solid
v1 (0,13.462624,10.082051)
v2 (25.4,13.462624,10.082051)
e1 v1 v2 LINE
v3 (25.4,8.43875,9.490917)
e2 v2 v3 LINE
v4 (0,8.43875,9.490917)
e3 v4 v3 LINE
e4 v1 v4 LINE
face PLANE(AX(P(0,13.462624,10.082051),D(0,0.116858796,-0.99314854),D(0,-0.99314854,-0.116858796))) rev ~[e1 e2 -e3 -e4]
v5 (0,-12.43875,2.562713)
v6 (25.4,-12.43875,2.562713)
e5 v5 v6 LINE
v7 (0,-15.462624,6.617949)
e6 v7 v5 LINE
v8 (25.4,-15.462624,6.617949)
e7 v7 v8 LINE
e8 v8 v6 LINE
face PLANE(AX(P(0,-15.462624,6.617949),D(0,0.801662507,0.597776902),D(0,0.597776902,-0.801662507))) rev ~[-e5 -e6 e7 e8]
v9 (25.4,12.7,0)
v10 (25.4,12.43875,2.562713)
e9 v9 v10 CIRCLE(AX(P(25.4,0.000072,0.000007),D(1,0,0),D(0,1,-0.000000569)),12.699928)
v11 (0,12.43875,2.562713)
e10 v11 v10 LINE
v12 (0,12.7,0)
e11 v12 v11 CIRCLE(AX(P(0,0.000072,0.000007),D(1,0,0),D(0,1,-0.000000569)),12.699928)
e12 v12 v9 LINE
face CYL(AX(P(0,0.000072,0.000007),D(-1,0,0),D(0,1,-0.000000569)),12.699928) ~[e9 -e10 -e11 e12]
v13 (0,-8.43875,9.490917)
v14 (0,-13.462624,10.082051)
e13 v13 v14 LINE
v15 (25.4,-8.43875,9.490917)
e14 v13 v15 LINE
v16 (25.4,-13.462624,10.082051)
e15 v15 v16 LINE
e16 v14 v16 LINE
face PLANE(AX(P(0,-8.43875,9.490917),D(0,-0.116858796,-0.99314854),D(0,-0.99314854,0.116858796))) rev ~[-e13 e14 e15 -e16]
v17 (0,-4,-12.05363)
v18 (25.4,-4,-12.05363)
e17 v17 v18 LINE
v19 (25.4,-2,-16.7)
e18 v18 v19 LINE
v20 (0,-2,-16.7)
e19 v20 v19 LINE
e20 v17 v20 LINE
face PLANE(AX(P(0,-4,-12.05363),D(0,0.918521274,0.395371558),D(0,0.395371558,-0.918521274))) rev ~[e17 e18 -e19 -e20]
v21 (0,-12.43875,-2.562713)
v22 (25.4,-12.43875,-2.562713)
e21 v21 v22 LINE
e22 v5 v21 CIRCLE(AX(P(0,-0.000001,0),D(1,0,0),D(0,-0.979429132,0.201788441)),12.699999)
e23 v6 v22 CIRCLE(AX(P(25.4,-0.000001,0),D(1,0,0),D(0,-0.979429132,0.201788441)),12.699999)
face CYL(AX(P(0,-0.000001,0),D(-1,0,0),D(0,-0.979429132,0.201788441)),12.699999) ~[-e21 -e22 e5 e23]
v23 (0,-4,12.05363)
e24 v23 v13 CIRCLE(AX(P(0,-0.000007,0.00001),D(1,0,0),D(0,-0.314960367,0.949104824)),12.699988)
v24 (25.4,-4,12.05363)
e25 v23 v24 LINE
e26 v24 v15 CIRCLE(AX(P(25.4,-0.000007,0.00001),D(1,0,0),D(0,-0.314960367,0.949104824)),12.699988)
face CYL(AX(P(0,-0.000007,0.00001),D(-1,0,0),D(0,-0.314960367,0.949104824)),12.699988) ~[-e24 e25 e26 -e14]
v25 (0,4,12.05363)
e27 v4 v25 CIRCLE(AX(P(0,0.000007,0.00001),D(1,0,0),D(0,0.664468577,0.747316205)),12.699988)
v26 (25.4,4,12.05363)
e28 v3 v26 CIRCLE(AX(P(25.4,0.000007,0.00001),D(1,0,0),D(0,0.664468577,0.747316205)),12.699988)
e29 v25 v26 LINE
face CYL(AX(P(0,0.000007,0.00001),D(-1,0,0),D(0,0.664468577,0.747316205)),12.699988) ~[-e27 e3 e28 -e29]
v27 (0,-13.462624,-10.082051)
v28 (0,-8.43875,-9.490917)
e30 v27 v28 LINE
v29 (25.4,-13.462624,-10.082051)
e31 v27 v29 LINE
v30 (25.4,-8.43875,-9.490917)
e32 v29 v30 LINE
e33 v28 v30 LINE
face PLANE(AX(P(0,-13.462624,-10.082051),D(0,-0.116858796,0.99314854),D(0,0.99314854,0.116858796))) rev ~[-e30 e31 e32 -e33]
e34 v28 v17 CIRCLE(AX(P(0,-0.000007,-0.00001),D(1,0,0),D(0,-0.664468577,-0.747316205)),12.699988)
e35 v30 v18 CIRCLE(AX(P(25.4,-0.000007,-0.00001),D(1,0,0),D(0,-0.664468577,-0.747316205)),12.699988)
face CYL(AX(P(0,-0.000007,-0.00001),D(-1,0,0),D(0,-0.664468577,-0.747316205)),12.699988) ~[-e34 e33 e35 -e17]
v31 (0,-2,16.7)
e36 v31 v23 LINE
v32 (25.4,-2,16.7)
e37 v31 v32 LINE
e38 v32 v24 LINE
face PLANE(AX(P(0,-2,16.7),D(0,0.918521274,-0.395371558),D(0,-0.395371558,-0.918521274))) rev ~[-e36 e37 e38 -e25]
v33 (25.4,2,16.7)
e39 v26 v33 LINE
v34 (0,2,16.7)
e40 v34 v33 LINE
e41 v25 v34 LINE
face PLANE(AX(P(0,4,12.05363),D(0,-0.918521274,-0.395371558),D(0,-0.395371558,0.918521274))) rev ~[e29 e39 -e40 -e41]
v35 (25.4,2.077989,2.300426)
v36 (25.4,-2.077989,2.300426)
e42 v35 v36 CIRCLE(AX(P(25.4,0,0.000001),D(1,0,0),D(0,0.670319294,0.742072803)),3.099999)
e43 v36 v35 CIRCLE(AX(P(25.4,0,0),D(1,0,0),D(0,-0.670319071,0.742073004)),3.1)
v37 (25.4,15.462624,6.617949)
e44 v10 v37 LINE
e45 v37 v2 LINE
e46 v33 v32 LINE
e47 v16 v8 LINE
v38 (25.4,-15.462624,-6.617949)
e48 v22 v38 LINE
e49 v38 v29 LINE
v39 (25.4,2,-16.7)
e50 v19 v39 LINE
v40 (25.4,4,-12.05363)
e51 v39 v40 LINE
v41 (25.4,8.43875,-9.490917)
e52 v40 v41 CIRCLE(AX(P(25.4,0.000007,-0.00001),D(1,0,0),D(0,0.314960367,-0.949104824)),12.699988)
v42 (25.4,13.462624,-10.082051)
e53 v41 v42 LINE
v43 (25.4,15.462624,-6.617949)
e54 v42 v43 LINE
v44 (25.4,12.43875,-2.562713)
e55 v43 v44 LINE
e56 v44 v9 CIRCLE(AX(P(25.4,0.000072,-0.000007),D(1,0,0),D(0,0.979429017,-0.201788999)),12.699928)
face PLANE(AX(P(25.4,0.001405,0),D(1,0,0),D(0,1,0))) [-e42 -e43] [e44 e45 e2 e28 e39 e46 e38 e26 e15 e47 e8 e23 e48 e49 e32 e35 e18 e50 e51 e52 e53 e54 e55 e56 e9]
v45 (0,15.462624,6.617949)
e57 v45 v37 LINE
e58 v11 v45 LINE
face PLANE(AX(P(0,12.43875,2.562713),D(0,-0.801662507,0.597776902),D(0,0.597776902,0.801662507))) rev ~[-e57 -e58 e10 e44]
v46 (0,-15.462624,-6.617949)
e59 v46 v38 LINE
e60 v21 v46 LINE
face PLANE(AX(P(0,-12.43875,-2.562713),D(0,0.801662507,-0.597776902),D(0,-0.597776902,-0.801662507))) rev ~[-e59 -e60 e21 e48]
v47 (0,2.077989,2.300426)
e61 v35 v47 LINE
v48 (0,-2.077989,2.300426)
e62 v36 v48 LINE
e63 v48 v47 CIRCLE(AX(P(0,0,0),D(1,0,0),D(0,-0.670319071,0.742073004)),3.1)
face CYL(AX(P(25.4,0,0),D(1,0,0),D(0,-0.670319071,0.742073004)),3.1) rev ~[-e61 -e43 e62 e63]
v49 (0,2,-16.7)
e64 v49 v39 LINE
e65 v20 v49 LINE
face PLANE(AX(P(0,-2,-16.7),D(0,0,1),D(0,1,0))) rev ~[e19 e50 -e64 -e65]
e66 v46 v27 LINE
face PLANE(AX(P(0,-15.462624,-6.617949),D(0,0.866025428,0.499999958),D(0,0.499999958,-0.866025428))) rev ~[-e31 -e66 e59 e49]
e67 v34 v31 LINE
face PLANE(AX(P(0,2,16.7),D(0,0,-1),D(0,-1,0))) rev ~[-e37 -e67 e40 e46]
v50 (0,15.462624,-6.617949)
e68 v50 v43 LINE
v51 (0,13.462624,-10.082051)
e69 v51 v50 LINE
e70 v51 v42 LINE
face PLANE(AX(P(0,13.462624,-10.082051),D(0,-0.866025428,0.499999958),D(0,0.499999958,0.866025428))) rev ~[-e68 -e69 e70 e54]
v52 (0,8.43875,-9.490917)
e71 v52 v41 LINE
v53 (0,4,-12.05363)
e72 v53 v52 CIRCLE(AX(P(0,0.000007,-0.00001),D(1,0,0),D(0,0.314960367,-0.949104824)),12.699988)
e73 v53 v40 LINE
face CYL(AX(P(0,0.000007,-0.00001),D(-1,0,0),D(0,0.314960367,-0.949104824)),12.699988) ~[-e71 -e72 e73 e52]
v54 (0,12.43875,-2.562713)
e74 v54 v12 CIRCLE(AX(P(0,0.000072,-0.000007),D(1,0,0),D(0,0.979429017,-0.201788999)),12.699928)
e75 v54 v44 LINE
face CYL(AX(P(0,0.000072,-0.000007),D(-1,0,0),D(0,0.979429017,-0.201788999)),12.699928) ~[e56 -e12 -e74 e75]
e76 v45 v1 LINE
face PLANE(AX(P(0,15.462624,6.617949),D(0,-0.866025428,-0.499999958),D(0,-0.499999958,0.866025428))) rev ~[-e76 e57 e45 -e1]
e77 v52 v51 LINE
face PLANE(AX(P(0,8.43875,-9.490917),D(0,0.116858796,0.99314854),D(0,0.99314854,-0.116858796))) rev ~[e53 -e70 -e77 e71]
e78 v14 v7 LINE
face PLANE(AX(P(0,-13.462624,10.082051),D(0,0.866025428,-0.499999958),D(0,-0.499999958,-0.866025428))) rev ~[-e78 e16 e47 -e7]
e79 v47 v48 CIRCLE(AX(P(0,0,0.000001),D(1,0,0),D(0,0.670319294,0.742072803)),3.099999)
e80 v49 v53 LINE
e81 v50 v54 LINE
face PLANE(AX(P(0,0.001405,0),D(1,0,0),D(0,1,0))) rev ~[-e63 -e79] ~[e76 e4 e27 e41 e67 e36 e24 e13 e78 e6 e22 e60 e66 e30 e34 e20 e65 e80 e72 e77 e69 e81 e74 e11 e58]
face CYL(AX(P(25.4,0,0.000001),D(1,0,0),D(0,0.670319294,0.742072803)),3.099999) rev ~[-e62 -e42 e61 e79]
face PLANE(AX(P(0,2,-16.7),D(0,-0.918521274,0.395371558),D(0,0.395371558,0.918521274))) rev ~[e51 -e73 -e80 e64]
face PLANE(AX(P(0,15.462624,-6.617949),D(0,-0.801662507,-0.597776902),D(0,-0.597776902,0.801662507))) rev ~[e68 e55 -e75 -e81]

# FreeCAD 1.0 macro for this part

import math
import FreeCAD as App
import Part
import Sketcher
from FreeCAD import Vector

doc = App.newDocument("Part")
body = doc.addObject("PartDesign::Body", "Body")

sketch1 = doc.addObject("Sketcher::SketchObject", "Sketch")
body.addObject(sketch1)
sketch1.AttachmentSupport = (doc.YZ_Plane, [""])
sketch1.MapMode = "FlatFace"
sketch1.addGeometry([
    Part.ArcOfCircle(Part.Circle(Vector(0.000072, -0.000007, 0), Vector(0, 0, 1), 12.699928), math.radians(-11.641594), math.radians(0.000033)),
    Part.ArcOfCircle(Part.Circle(Vector(0.000072, 0.000007, 0), Vector(0, 0, 1), 12.699928), math.radians(-0.000033), math.radians(11.641594)),
    Part.LineSegment(Vector(12.43875, 2.562713, 0), Vector(15.462624, 6.617949, 0)),
    Part.LineSegment(Vector(15.462624, 6.617949, 0), Vector(13.462624, 10.082051, 0)),
    Part.LineSegment(Vector(13.462624, 10.082051, 0), Vector(8.43875, 9.490917, 0)),
    Part.ArcOfCircle(Part.Circle(Vector(0.000007, 0.00001, 0), Vector(0, 0, 1), 12.699988), math.radians(48.358431), math.radians(71.641579)),
    Part.LineSegment(Vector(4, 12.05363, 0), Vector(2, 16.7, 0)),
    Part.LineSegment(Vector(2, 16.7, 0), Vector(-2, 16.7, 0)),
    Part.LineSegment(Vector(-2, 16.7, 0), Vector(-4, 12.05363, 0)),
    Part.ArcOfCircle(Part.Circle(Vector(-0.000007, 0.00001, 0), Vector(0, 0, 1), 12.699988), math.radians(108.358421), math.radians(131.641569)),
    Part.LineSegment(Vector(-8.43875, 9.490917, 0), Vector(-13.462624, 10.082051, 0)),
    Part.LineSegment(Vector(-13.462624, 10.082051, 0), Vector(-15.462624, 6.617949, 0)),
    Part.LineSegment(Vector(-15.462624, 6.617949, 0), Vector(-12.43875, 2.562713, 0)),
    Part.ArcOfCircle(Part.Circle(Vector(-0.000001, 0, 0), Vector(0, 0, 1), 12.699999), math.radians(168.358438), math.radians(191.641562)),
    Part.LineSegment(Vector(-12.43875, -2.562713, 0), Vector(-15.462624, -6.617949, 0)),
    Part.LineSegment(Vector(-15.462624, -6.617949, 0), Vector(-13.462624, -10.082051, 0)),
    Part.LineSegment(Vector(-13.462624, -10.082051, 0), Vector(-8.43875, -9.490917, 0)),
    Part.ArcOfCircle(Part.Circle(Vector(-0.000007, -0.00001, 0), Vector(0, 0, 1), 12.699988), math.radians(-131.641569), math.radians(-108.358421)),
    Part.LineSegment(Vector(-4, -12.05363, 0), Vector(-2, -16.7, 0)),
    Part.LineSegment(Vector(-2, -16.7, 0), Vector(2, -16.7, 0)),
    Part.LineSegment(Vector(2, -16.7, 0), Vector(4, -12.05363, 0)),
    Part.ArcOfCircle(Part.Circle(Vector(0.000007, -0.00001, 0), Vector(0, 0, 1), 12.699988), math.radians(-71.641579), math.radians(-48.358431)),
    Part.LineSegment(Vector(8.43875, -9.490917, 0), Vector(13.462624, -10.082051, 0)),
    Part.LineSegment(Vector(13.462624, -10.082051, 0), Vector(15.462624, -6.617949, 0)),
    Part.LineSegment(Vector(15.462624, -6.617949, 0), Vector(12.43875, -2.562713, 0)),
], False)
sketch1.addConstraint([
    Sketcher.Constraint("Coincident", 0, 2, 1, 1),
    Sketcher.Constraint("Coincident", 1, 2, 2, 1),
    Sketcher.Constraint("Coincident", 2, 2, 3, 1),
    Sketcher.Constraint("Coincident", 3, 2, 4, 1),
    Sketcher.Constraint("Coincident", 4, 2, 5, 1),
    Sketcher.Constraint("Coincident", 5, 2, 6, 1),
    Sketcher.Constraint("Coincident", 6, 2, 7, 1),
    Sketcher.Constraint("Coincident", 7, 2, 8, 1),
    Sketcher.Constraint("Coincident", 8, 2, 9, 1),
    Sketcher.Constraint("Coincident", 9, 2, 10, 1),
    Sketcher.Constraint("Coincident", 10, 2, 11, 1),
    Sketcher.Constraint("Coincident", 11, 2, 12, 1),
    Sketcher.Constraint("Coincident", 12, 2, 13, 1),
    Sketcher.Constraint("Coincident", 13, 2, 14, 1),
    Sketcher.Constraint("Coincident", 14, 2, 15, 1),
    Sketcher.Constraint("Coincident", 15, 2, 16, 1),
    Sketcher.Constraint("Coincident", 16, 2, 17, 1),
    Sketcher.Constraint("Coincident", 17, 2, 18, 1),
    Sketcher.Constraint("Coincident", 18, 2, 19, 1),
    Sketcher.Constraint("Coincident", 19, 2, 20, 1),
    Sketcher.Constraint("Coincident", 20, 2, 21, 1),
    Sketcher.Constraint("Coincident", 21, 2, 22, 1),
    Sketcher.Constraint("Coincident", 22, 2, 23, 1),
    Sketcher.Constraint("Coincident", 23, 2, 24, 1),
    Sketcher.Constraint("Coincident", 24, 2, 0, 1),
    Sketcher.Constraint("Horizontal", 7),
    Sketcher.Constraint("Horizontal", 19),
    Sketcher.Constraint("Coincident", 13, 3, -1, 1),
    Sketcher.Constraint("PointOnObject", 0, 2, -1),
    Sketcher.Constraint("Radius", 13, 12.699999),
    Sketcher.Constraint("DistanceX", 7, 2, 7, 1, 4.0),
    Sketcher.Constraint("DistanceX", 19, 1, 19, 2, 4.0),
    Sketcher.Constraint("Distance", 3, 4.0),
    Sketcher.Constraint("Distance", 11, 4.0),
    Sketcher.Constraint("Distance", 15, 4.0),
    Sketcher.Constraint("Distance", 23, 4.0),
    Sketcher.Constraint("DistanceX", -1, 1, 5, 2, 4.0),
    Sketcher.Constraint("DistanceX", -1, 1, 6, 2, 2.0),
    Sketcher.Constraint("DistanceX", 8, 2, -1, 1, 4.0),
    Sketcher.Constraint("DistanceX", 17, 2, -1, 1, 4.0),
    Sketcher.Constraint("DistanceX", 18, 2, -1, 1, 2.0),
    Sketcher.Constraint("DistanceX", -1, 1, 20, 2, 4.0),
    Sketcher.Constraint("DistanceX", 3, 2, 2, 2, 2.0),
    Sketcher.Constraint("DistanceX", 4, 2, 1, 2, 4.0),
    Sketcher.Constraint("DistanceX", 11, 2, 10, 2, 2.0),
    Sketcher.Constraint("DistanceX", 12, 2, 9, 2, 4.0),
    Sketcher.Constraint("DistanceX", 14, 2, 15, 2, 2.0),
    Sketcher.Constraint("DistanceX", 13, 2, 16, 2, 4.0),
    Sketcher.Constraint("DistanceX", 22, 2, 23, 2, 2.0),
    Sketcher.Constraint("DistanceX", 21, 2, 24, 2, 4.0),
    Sketcher.Constraint("DistanceX", -1, 1, 0, 2, 12.7),
    Sketcher.Constraint("DistanceY", -1, 1, 6, 2, 16.7),
    Sketcher.Constraint("DistanceY", 18, 2, -1, 1, 16.7),
    Sketcher.Constraint("Radius", 0, 12.699928),
    Sketcher.Constraint("Radius", 1, 12.699928),
    Sketcher.Constraint("Radius", 5, 12.699988),
    Sketcher.Constraint("Radius", 9, 12.699988),
    Sketcher.Constraint("Radius", 17, 12.699988),
    Sketcher.Constraint("Radius", 21, 12.699988),
    Sketcher.Constraint("DistanceX", -1, 1, 1, 2, 12.43875),
    Sketcher.Constraint("DistanceY", -1, 1, 2, 2, 6.617949),
    Sketcher.Constraint("DistanceY", -1, 1, 5, 2, 12.05363),
    Sketcher.Constraint("DistanceY", -1, 1, 8, 2, 12.05363),
    Sketcher.Constraint("DistanceX", 9, 2, -1, 1, 8.43875),
    Sketcher.Constraint("DistanceY", -1, 1, 10, 2, 10.082051),
    Sketcher.Constraint("DistanceX", 13, 2, -1, 1, 12.43875),
    Sketcher.Constraint("DistanceY", 14, 2, -1, 1, 6.617949),
    Sketcher.Constraint("DistanceY", 17, 2, -1, 1, 12.05363),
    Sketcher.Constraint("DistanceY", 20, 2, -1, 1, 12.05363),
    Sketcher.Constraint("DistanceX", -1, 1, 21, 2, 8.43875),
    Sketcher.Constraint("DistanceY", 22, 2, -1, 1, 10.082051),
    Sketcher.Constraint("DistanceY", 0, 3, 1, 2, 2.56272),
    Sketcher.Constraint("DistanceY", 1, 3, 2, 2, 6.617942),
    Sketcher.Constraint("DistanceY", 5, 3, 2, 2, 6.617939),
    Sketcher.Constraint("DistanceY", 9, 3, 7, 2, 16.69999),
    Sketcher.Constraint("DistanceY", 17, 3, 11, 2, 6.617959),
    Sketcher.Constraint("DistanceY", 17, 2, 21, 3, 12.05362),
    Sketcher.Constraint("Distance", 2, 5.058533),
    Sketcher.Constraint("Distance", 10, 5.058532),
    Sketcher.Constraint("Distance", 14, 5.058533),
    Sketcher.Constraint("Distance", 22, 5.058532),
])
pad1 = doc.addObject("PartDesign::Pad", "Pad")
body.addObject(pad1)
pad1.Profile = sketch1
pad1.Length = 25.4

sketch2 = doc.addObject("Sketcher::SketchObject", "Sketch001")
body.addObject(sketch2)
sketch2.AttachmentSupport = (doc.YZ_Plane, [""])
sketch2.MapMode = "FlatFace"
sketch2.AttachmentOffset = App.Placement(Vector(0, 0, 25.4), App.Rotation())
sketch2.addGeometry([
    Part.ArcOfCircle(Part.Circle(Vector(0, 0, 0), Vector(0, 0, 1), 3.1), math.radians(48), math.radians(132)),
    Part.ArcOfCircle(Part.Circle(Vector(0, 0, 0), Vector(0, 0, 1), 3.1), math.radians(132), math.radians(408)),
], False)
sketch2.addConstraint([
    Sketcher.Constraint("Tangent", 0, 1, 1, 2),
    Sketcher.Constraint("Coincident", 1, 1, 0, 2),
    Sketcher.Constraint("Coincident", 0, 3, -1, 1),
    Sketcher.Constraint("Horizontal", 0, 1, 1, 1),
    Sketcher.Constraint("Radius", 0, 3.099999),
    Sketcher.Constraint("DistanceX", -1, 1, 0, 1, 2.077989),
])
pocket1 = doc.addObject("PartDesign::Pocket", "Pocket")
body.addObject(pocket1)
pocket1.Profile = sketch2
pocket1.Length = 25.4

doc.recompute()
